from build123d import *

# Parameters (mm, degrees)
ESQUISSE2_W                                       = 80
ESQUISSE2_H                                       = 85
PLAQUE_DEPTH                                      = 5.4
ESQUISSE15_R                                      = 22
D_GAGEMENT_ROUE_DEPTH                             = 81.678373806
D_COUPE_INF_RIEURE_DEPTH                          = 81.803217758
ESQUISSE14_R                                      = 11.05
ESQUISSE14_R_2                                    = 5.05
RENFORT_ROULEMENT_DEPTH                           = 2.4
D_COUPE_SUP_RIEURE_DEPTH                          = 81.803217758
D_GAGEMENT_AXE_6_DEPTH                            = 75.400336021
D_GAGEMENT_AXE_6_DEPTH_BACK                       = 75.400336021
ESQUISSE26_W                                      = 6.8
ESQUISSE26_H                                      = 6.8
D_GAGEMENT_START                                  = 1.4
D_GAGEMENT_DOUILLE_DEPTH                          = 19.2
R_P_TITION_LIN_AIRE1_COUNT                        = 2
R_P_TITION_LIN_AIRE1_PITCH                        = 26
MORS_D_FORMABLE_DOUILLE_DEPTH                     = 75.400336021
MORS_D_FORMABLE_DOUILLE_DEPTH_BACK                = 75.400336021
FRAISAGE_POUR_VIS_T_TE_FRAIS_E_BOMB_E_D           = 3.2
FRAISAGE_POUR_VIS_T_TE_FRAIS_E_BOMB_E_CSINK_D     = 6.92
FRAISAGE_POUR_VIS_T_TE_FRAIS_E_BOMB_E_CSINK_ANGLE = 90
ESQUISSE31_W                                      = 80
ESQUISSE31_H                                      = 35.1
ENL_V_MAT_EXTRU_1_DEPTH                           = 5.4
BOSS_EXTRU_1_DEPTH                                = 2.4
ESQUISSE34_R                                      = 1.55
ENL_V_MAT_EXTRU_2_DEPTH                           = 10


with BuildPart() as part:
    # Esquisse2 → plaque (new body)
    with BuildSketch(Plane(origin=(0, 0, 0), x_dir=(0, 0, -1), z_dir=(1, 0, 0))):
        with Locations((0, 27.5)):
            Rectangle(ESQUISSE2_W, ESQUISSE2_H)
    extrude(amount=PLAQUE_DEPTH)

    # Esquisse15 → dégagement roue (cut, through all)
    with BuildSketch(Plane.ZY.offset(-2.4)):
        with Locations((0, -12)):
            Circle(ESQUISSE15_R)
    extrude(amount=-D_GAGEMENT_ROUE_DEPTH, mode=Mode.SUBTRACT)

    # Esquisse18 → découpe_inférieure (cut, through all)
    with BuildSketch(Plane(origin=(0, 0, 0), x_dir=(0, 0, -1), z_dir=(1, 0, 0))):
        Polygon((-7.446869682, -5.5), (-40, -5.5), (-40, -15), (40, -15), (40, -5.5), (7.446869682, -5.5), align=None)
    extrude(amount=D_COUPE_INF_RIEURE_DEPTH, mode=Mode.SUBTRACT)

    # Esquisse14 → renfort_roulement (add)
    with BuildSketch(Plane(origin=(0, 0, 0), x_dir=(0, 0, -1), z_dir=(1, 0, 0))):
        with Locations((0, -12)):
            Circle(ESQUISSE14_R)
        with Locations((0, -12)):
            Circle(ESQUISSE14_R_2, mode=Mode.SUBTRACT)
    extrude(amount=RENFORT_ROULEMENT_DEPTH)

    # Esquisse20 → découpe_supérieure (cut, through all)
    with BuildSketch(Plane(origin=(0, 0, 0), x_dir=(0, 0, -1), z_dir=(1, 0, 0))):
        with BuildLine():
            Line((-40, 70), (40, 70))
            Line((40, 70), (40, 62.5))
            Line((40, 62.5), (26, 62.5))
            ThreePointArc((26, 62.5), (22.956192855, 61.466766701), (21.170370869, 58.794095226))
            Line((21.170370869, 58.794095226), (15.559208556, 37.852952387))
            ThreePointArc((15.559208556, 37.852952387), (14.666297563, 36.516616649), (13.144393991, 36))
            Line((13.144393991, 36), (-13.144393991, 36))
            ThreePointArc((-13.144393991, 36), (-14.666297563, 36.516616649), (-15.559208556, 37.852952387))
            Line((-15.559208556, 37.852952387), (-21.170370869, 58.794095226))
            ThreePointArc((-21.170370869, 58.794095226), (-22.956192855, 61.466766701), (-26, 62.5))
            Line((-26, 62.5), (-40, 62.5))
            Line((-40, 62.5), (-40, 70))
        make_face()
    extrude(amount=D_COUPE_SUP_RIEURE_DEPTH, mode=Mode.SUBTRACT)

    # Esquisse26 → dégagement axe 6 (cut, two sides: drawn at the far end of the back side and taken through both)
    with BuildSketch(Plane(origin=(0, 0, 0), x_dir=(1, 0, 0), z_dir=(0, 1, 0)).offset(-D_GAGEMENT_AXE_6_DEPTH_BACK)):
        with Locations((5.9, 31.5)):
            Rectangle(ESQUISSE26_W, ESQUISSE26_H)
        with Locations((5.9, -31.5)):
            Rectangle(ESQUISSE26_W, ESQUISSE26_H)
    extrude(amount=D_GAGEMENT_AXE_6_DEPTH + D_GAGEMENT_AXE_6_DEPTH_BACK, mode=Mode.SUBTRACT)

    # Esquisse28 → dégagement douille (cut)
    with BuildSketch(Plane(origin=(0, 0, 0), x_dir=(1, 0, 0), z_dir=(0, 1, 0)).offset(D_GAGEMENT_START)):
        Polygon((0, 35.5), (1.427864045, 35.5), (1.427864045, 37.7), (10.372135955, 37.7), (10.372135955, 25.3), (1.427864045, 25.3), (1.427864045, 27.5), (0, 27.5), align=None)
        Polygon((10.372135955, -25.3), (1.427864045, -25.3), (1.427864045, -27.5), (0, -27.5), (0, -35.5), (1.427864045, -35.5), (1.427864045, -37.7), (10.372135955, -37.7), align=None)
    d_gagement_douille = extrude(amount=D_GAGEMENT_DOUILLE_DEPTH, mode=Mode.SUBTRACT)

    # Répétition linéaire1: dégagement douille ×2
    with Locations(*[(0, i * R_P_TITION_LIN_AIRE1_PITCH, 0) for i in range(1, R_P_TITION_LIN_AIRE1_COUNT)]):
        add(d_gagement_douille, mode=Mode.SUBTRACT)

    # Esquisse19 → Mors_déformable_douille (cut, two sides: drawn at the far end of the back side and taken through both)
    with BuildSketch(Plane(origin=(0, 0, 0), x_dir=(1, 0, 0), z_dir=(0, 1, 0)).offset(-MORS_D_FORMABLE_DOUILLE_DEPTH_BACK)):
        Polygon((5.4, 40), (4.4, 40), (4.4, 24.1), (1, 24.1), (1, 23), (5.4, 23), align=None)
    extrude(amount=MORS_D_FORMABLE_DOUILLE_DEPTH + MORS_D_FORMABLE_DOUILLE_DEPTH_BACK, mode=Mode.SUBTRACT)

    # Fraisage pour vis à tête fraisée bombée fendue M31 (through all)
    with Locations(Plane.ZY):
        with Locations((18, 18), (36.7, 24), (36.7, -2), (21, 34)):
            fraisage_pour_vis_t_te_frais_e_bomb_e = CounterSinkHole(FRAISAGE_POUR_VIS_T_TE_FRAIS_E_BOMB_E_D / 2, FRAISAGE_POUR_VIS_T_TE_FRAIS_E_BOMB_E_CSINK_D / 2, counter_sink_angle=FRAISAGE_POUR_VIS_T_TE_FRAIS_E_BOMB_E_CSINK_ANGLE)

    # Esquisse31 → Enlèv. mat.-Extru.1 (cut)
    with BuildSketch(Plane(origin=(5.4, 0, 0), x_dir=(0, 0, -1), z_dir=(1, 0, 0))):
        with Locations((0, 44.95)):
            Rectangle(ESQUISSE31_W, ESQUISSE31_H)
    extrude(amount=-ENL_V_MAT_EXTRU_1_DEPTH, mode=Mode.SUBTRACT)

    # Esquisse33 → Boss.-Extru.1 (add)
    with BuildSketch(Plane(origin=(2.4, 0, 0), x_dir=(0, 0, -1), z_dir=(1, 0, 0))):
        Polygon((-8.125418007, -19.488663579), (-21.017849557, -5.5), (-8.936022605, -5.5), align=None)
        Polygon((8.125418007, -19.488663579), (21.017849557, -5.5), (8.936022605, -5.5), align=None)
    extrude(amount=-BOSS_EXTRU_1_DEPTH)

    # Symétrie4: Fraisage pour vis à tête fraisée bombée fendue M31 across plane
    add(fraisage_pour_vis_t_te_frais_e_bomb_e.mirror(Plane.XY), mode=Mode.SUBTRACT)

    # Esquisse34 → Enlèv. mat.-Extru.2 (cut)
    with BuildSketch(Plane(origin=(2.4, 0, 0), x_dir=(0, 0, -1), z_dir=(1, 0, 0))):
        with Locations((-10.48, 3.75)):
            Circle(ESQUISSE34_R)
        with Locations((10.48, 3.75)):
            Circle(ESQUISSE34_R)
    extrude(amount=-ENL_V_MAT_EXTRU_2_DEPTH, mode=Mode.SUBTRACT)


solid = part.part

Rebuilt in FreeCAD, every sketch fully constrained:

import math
import FreeCAD as App
import Part
import Sketcher

V = App.Vector
Q = App.Units.Quantity


def add_polygon(sketch, points):
    """Adds a closed chain of lines whose ends are joined by coincident constraints."""
    first, n = sketch.GeometryCount, len(points)
    for a, b in zip(points, points[1:] + points[:1]):
        sketch.addGeometry(Part.LineSegment(App.Vector(*a, 0), App.Vector(*b, 0)), False)
    for i in range(n):
        sketch.addConstraint(Sketcher.Constraint("Coincident", first + i, 2, first + (i + 1) % n, 1))

doc = App.newDocument("Part")
body = doc.addObject("PartDesign::Body", "Body")

# Sketch on YZ plane
sketch1 = doc.addObject("Sketcher::SketchObject", "Sketch")
body.addObject(sketch1)
sketch1.AttachmentSupport = (doc.YZ_Plane, [""])
sketch1.MapMode = "FlatFace"
add_polygon(sketch1, [(70, 40), (-15, 40), (-15, -40), (70, -40)])  # lines 0-3
sketch1.addConstraint(Sketcher.Constraint("Horizontal", 0))
sketch1.addConstraint(Sketcher.Constraint("Vertical", 1))
sketch1.addConstraint(Sketcher.Constraint("Horizontal", 2))
sketch1.addConstraint(Sketcher.Constraint("Vertical", 3))
sketch1.addConstraint(Sketcher.Constraint("DistanceX", 0, 2, 0, 1, 85.0))
sketch1.addConstraint(Sketcher.Constraint("DistanceY", 1, 2, 1, 1, 80.0))
sketch1.addConstraint(Sketcher.Constraint("DistanceX", 0, 2, -1, 1, 15.0))
sketch1.addConstraint(Sketcher.Constraint("DistanceY", -1, 1, 0, 2, 40.0))
pad1 = doc.addObject("PartDesign::Pad", "Pad")
body.addObject(pad1)
pad1.Profile = sketch1
pad1.Length = 5.4

# Sketch on YZ plane
sketch2 = doc.addObject("Sketcher::SketchObject", "Sketch001")
body.addObject(sketch2)
sketch2.AttachmentSupport = (doc.YZ_Plane, [""])
sketch2.MapMode = "FlatFace"
sketch2.AttachmentOffset = App.Placement(V(0, 0, 2.4), App.Rotation())
sketch2.addGeometry(Part.Circle(V(-12, 0, 0), V(0, 0, 1), 22), False)
sketch2.addConstraint(Sketcher.Constraint("PointOnObject", 0, 3, -1))
sketch2.addConstraint(Sketcher.Constraint("Diameter", 0, 44.0))
sketch2.addConstraint(Sketcher.Constraint("DistanceX", 0, 3, -1, 1, 12.0))
pocket1 = doc.addObject("PartDesign::Pocket", "Pocket")
body.addObject(pocket1)
pocket1.Profile = sketch2
pocket1.Type = "ThroughAll"
pocket1.Reversed = True

# Sketch on YZ plane
sketch3 = doc.addObject("Sketcher::SketchObject", "Sketch002")
body.addObject(sketch3)
sketch3.AttachmentSupport = (doc.YZ_Plane, [""])
sketch3.MapMode = "FlatFace"
add_polygon(sketch3, [(-6, 40), (-15, 40), (-15, -40), (-6, -40)])  # lines 0-3
sketch3.addConstraint(Sketcher.Constraint("Horizontal", 0))
sketch3.addConstraint(Sketcher.Constraint("Vertical", 1))
sketch3.addConstraint(Sketcher.Constraint("Horizontal", 2))
sketch3.addConstraint(Sketcher.Constraint("Vertical", 3))
sketch3.addConstraint(Sketcher.Constraint("DistanceY", 1, 2, 1, 1, 80.0))
sketch3.addConstraint(Sketcher.Constraint("DistanceX", 0, 2, 0, 1, 9.5))
sketch3.addConstraint(Sketcher.Constraint("DistanceX", 0, 2, -1, 1, 15.0))
sketch3.addConstraint(Sketcher.Constraint("DistanceY", -1, 1, 0, 2, 40.0))
pocket2 = doc.addObject("PartDesign::Pocket", "Pocket001")
body.addObject(pocket2)
pocket2.Profile = sketch3
pocket2.Type = "ThroughAll"
pocket2.Reversed = True

# Sketch on YZ plane
sketch4 = doc.addObject("Sketcher::SketchObject", "Sketch003")
body.addObject(sketch4)
sketch4.AttachmentSupport = (doc.YZ_Plane, [""])
sketch4.MapMode = "FlatFace"
sketch4.addGeometry(Part.Circle(V(-12, 0, 0), V(0, 0, 1), 11), False)
sketch4.addGeometry(Part.Circle(V(-12, 0, 0), V(0, 0, 1), 5), False)
sketch4.addConstraint(Sketcher.Constraint("Coincident", 1, 3, 0, 3))
sketch4.addConstraint(Sketcher.Constraint("PointOnObject", 0, 3, -1))
sketch4.addConstraint(Sketcher.Constraint("Diameter", 0, 22.1))
sketch4.addConstraint(Sketcher.Constraint("Diameter", 1, 10.1))
sketch4.addConstraint(Sketcher.Constraint("DistanceX", 0, 3, -1, 1, 12.0))
pad2 = doc.addObject("PartDesign::Pad", "Pad001")
body.addObject(pad2)
pad2.Profile = sketch4
pad2.Length = 2.4

# Sketch on YZ plane
sketch5 = doc.addObject("Sketcher::SketchObject", "Sketch004")
body.addObject(sketch5)
sketch5.AttachmentSupport = (doc.YZ_Plane, [""])
sketch5.MapMode = "FlatFace"
sketch5.addGeometry(Part.LineSegment(V(70, -40, 0), V(70, 40, 0)), False)
sketch5.addGeometry(Part.LineSegment(V(70, 40, 0), V(62.5, 40, 0)), False)
sketch5.addGeometry(Part.LineSegment(V(62.5, 40, 0), V(62.5, 26, 0)), False)
sketch5.addGeometry(Part.ArcOfCircle(Part.Circle(V(57.5, 26, 0), V(0, 0, 1), 5), math.radians(-75), math.radians(0)), False)
sketch5.addGeometry(Part.LineSegment(V(58.8, 21.2, 0), V(37.9, 15.6, 0)), False)
sketch5.addGeometry(Part.ArcOfCircle(Part.Circle(V(38.5, 13.1, 0), V(0, 0, 1), 2.5), math.radians(105), math.radians(180)), False)
sketch5.addGeometry(Part.LineSegment(V(36, 13.1, 0), V(36, -13.1, 0)), False)
sketch5.addGeometry(Part.ArcOfCircle(Part.Circle(V(38.5, -13.1, 0), V(0, 0, 1), 2.5), math.radians(180), math.radians(255)), False)
sketch5.addGeometry(Part.LineSegment(V(37.9, -15.6, 0), V(58.8, -21.2, 0)), False)
sketch5.addGeometry(Part.ArcOfCircle(Part.Circle(V(57.5, -26, 0), V(0, 0, 1), 5), math.radians(0), math.radians(75)), False)
sketch5.addGeometry(Part.LineSegment(V(62.5, -26, 0), V(62.5, -40, 0)), False)
sketch5.addGeometry(Part.LineSegment(V(62.5, -40, 0), V(70, -40, 0)), False)
sketch5.addConstraint(Sketcher.Constraint("Coincident", 0, 2, 1, 1))
sketch5.addConstraint(Sketcher.Constraint("Coincident", 1, 2, 2, 1))
sketch5.addConstraint(Sketcher.Constraint("Tangent", 2, 2, 3, 2))
sketch5.addConstraint(Sketcher.Constraint("Tangent", 3, 1, 4, 1))
sketch5.addConstraint(Sketcher.Constraint("Tangent", 4, 2, 5, 1))
sketch5.addConstraint(Sketcher.Constraint("Tangent", 5, 2, 6, 1))
sketch5.addConstraint(Sketcher.Constraint("Tangent", 6, 2, 7, 1))
sketch5.addConstraint(Sketcher.Constraint("Tangent", 7, 2, 8, 1))
sketch5.addConstraint(Sketcher.Constraint("Tangent", 8, 2, 9, 2))
sketch5.addConstraint(Sketcher.Constraint("Tangent", 9, 1, 10, 1))
sketch5.addConstraint(Sketcher.Constraint("Coincident", 10, 2, 11, 1))
sketch5.addConstraint(Sketcher.Constraint("Coincident", 11, 2, 0, 1))
sketch5.addConstraint(Sketcher.Constraint("Vertical", 0))
sketch5.addConstraint(Sketcher.Constraint("Horizontal", 1))
sketch5.addConstraint(Sketcher.Constraint("Vertical", 2))
sketch5.addConstraint(Sketcher.Constraint("Vertical", 6))
sketch5.addConstraint(Sketcher.Constraint("Vertical", 10))
sketch5.addConstraint(Sketcher.Constraint("Horizontal", 11))
sketch5.addConstraint(Sketcher.Constraint("Equal", 5, 7))
sketch5.addConstraint(Sketcher.Constraint("Equal", 3, 9))
sketch5.addConstraint(Sketcher.Constraint("Symmetric", 3, 3, 9, 3, -1))
sketch5.addConstraint(Sketcher.Constraint("Vertical", 4, 2, 7, 2))
sketch5.addConstraint(Sketcher.Constraint("Equal", 2, 10))
sketch5.addConstraint(Sketcher.Constraint("Radius", 3, 5.0))
sketch5.addConstraint(Sketcher.Constraint("Radius", 5, 2.5))
sketch5.addConstraint(Sketcher.Constraint("DistanceY", 0, 1, 0, 2, 80.0))
sketch5.addConstraint(Sketcher.Constraint("DistanceY", 2, 2, 2, 1, 14.0))
sketch5.addConstraint(Sketcher.Constraint("Angle", 4, Q("-165 deg")))
sketch5.addConstraint(Sketcher.Constraint("DistanceX", 1, 2, 1, 1, 7.5))
sketch5.addConstraint(Sketcher.Constraint("DistanceX", -1, 1, 0, 2, 70.0))
sketch5.addConstraint(Sketcher.Constraint("DistanceX", -1, 1, 5, 2, 36.0))
pocket3 = doc.addObject("PartDesign::Pocket", "Pocket002")
body.addObject(pocket3)
pocket3.Profile = sketch5
pocket3.Type = "ThroughAll"
pocket3.Reversed = True

# Sketch on XZ plane
sketch6 = doc.addObject("Sketcher::SketchObject", "Sketch005")
body.addObject(sketch6)
sketch6.AttachmentSupport = (doc.XZ_Plane, [""])
sketch6.MapMode = "FlatFace"
add_polygon(sketch6, [(2, -35), (2, -28), (9, -28), (9, -35)])  # lines 0-3
add_polygon(sketch6, [(2, 28), (2, 35), (9, 35), (9, 28)])  # lines 4-7
sketch6.addConstraint(Sketcher.Constraint("Vertical", 0))
sketch6.addConstraint(Sketcher.Constraint("Horizontal", 1))
sketch6.addConstraint(Sketcher.Constraint("Vertical", 2))
sketch6.addConstraint(Sketcher.Constraint("Horizontal", 3))
sketch6.addConstraint(Sketcher.Constraint("Vertical", 4))
sketch6.addConstraint(Sketcher.Constraint("Horizontal", 5))
sketch6.addConstraint(Sketcher.Constraint("Vertical", 6))
sketch6.addConstraint(Sketcher.Constraint("Horizontal", 7))
sketch6.addConstraint(Sketcher.Constraint("Symmetric", 3, 2, 4, 2, -1))
sketch6.addConstraint(Sketcher.Constraint("Symmetric", 1, 2, 6, 2, -1))
sketch6.addConstraint(Sketcher.Constraint("Equal", 7, 0))
sketch6.addConstraint(Sketcher.Constraint("DistanceX", 1, 1, 1, 2, 6.8))
sketch6.addConstraint(Sketcher.Constraint("DistanceY", 0, 2, 4, 2, 63.0))
sketch6.addConstraint(Sketcher.Constraint("DistanceX", -1, 1, 0, 2, 2.5))
pocket4 = doc.addObject("PartDesign::Pocket", "Pocket003")
body.addObject(pocket4)
pocket4.Profile = sketch6
pocket4.Type = "ThroughAll"
pocket4.Midplane = True

# Sketch on XZ plane
sketch7 = doc.addObject("Sketcher::SketchObject", "Sketch006")
body.addObject(sketch7)
sketch7.AttachmentSupport = (doc.XZ_Plane, [""])
sketch7.MapMode = "FlatFace"
sketch7.AttachmentOffset = App.Placement(V(0, 0, -1.4), App.Rotation())
add_polygon(sketch7, [(1.4, -35.5), (0, -35.5), (0, -27.5), (1.4, -27.5), (1.4, -25.3), (10.4, -25.3), (10.4, -37.7), (1.4, -37.7)])  # lines 0-7
add_polygon(sketch7, [(10.4, 25.3), (1.4, 25.3), (1.4, 27.5), (0, 27.5), (0, 35.5), (1.4, 35.5), (1.4, 37.7), (10.4, 37.7)])  # lines 8-15
sketch7.addConstraint(Sketcher.Constraint("Horizontal", 0))
sketch7.addConstraint(Sketcher.Constraint("Vertical", 1))
sketch7.addConstraint(Sketcher.Constraint("Horizontal", 2))
sketch7.addConstraint(Sketcher.Constraint("Vertical", 3))
sketch7.addConstraint(Sketcher.Constraint("Horizontal", 4))
sketch7.addConstraint(Sketcher.Constraint("Vertical", 5))
sketch7.addConstraint(Sketcher.Constraint("Horizontal", 6))
sketch7.addConstraint(Sketcher.Constraint("Vertical", 7))
sketch7.addConstraint(Sketcher.Constraint("Horizontal", 8))
sketch7.addConstraint(Sketcher.Constraint("Vertical", 9))
sketch7.addConstraint(Sketcher.Constraint("Horizontal", 10))
sketch7.addConstraint(Sketcher.Constraint("Vertical", 11))
sketch7.addConstraint(Sketcher.Constraint("Horizontal", 12))
sketch7.addConstraint(Sketcher.Constraint("Vertical", 13))
sketch7.addConstraint(Sketcher.Constraint("Horizontal", 14))
sketch7.addConstraint(Sketcher.Constraint("Vertical", 15))
sketch7.addConstraint(Sketcher.Constraint("Symmetric", 1, 2, 10, 2, -1, 1))
sketch7.addConstraint(Sketcher.Constraint("Symmetric", 3, 2, 8, 2, -1))
sketch7.addConstraint(Sketcher.Constraint("Symmetric", 0, 2, 11, 2, -1))
sketch7.addConstraint(Sketcher.Constraint("Symmetric", 6, 2, 13, 2, -1))
sketch7.addConstraint(Sketcher.Constraint("Vertical", 3, 2, 6, 2))
sketch7.addConstraint(Sketcher.Constraint("Vertical", 5, 2, 14, 2))
sketch7.addConstraint(Sketcher.Constraint("Equal", 3, 7))
sketch7.addConstraint(Sketcher.Constraint("DistanceY", 1, 1, 1, 2, 8.0))
sketch7.addConstraint(Sketcher.Constraint("DistanceY", 3, 1, 3, 2, 2.2))
sketch7.addConstraint(Sketcher.Constraint("DistanceY", 2, 2, 9, 2, 55.0))
sketch7.addConstraint(Sketcher.Constraint("DistanceX", 4, 1, 4, 2, 8.944272))
sketch7.addConstraint(Sketcher.Constraint("DistanceX", 0, 2, 0, 1, 1.427864))
pocket5 = doc.addObject("PartDesign::Pocket", "Pocket004")
body.addObject(pocket5)
pocket5.Profile = sketch7
pocket5.Length = 19.2
doc.recompute()

linearpattern = doc.addObject("PartDesign::LinearPattern", "LinearPattern")
body.addObject(linearpattern)
linearpattern.Originals = [pocket5]
linearpattern.Direction = (doc.Y_Axis, [""])
linearpattern.Mode = "offset"
linearpattern.Offset = 26
linearpattern.Occurrences = 2
body.Tip = linearpattern

# Sketch on XZ plane
sketch8 = doc.addObject("Sketcher::SketchObject", "Sketch007")
body.addObject(sketch8)
sketch8.AttachmentSupport = (doc.XZ_Plane, [""])
sketch8.MapMode = "FlatFace"
add_polygon(sketch8, [(5.4, -40), (4.4, -40), (4.4, -24.1), (1, -24.1), (1, -23), (5.4, -23)])  # lines 0-5
sketch8.addConstraint(Sketcher.Constraint("Horizontal", 0))
sketch8.addConstraint(Sketcher.Constraint("Vertical", 1))
sketch8.addConstraint(Sketcher.Constraint("Horizontal", 2))
sketch8.addConstraint(Sketcher.Constraint("Vertical", 3))
sketch8.addConstraint(Sketcher.Constraint("Horizontal", 4))
sketch8.addConstraint(Sketcher.Constraint("Vertical", 5))
sketch8.addConstraint(Sketcher.Constraint("DistanceX", 0, 2, 0, 1, 1.0))
sketch8.addConstraint(Sketcher.Constraint("DistanceY", 5, 2, 5, 1, 17.0))
sketch8.addConstraint(Sketcher.Constraint("DistanceX", 2, 2, 2, 1, 3.4))
sketch8.addConstraint(Sketcher.Constraint("DistanceY", 1, 1, 1, 2, 15.9))
sketch8.addConstraint(Sketcher.Constraint("DistanceY", 0, 2, -1, 1, 40.0))
sketch8.addConstraint(Sketcher.Constraint("DistanceX", -1, 1, 2, 2, 1.0))
pocket6 = doc.addObject("PartDesign::Pocket", "Pocket005")
body.addObject(pocket6)
pocket6.Profile = sketch8
pocket6.Type = "ThroughAll"
pocket6.Midplane = True

# Sketch on YZ plane
sketch9 = doc.addObject("Sketcher::SketchObject", "Sketch008")
body.addObject(sketch9)
sketch9.AttachmentSupport = (doc.YZ_Plane, [""])
sketch9.MapMode = "FlatFace"
sketch9.addGeometry(Part.Circle(V(18, 18, 0), V(0, 0, 1), 1.6), False)
sketch9.addGeometry(Part.Circle(V(24, 36.7, 0), V(0, 0, 1), 1.6), False)
sketch9.addGeometry(Part.Circle(V(-2, 36.7, 0), V(0, 0, 1), 1.6), False)
sketch9.addGeometry(Part.Circle(V(34, 21, 0), V(0, 0, 1), 1.6), False)
sketch9.addConstraint(Sketcher.Constraint("Equal", 0, 1))
sketch9.addConstraint(Sketcher.Constraint("Equal", 1, 2))
sketch9.addConstraint(Sketcher.Constraint("Equal", 2, 3))
sketch9.addConstraint(Sketcher.Constraint("Horizontal", 1, 3, 2, 3))
sketch9.addConstraint(Sketcher.Constraint("Diameter", 0, 3.2))
sketch9.addConstraint(Sketcher.Constraint("DistanceX", -1, 1, 0, 3, 18.0))
sketch9.addConstraint(Sketcher.Constraint("DistanceY", -1, 1, 0, 3, 18.0))
sketch9.addConstraint(Sketcher.Constraint("DistanceX", -1, 1, 1, 3, 24.0))
sketch9.addConstraint(Sketcher.Constraint("DistanceX", 2, 3, -1, 1, 2.0))
sketch9.addConstraint(Sketcher.Constraint("DistanceX", -1, 1, 3, 3, 34.0))
sketch9.addConstraint(Sketcher.Constraint("DistanceY", -1, 1, 3, 3, 21.0))
sketch9.addConstraint(Sketcher.Constraint("DistanceY", -1, 1, 1, 3, 36.7))
doc.recompute()
hole = doc.addObject("PartDesign::Hole", "Hole")
body.addObject(hole)
hole.Profile = sketch9
hole.ThreadType = "None"
hole.Diameter = 3.2
hole.DepthType = "ThroughAll"
hole.HoleCutType = "Countersink"
hole.HoleCutDiameter = 6.92
hole.HoleCutCountersinkAngle = 90
hole.Reversed = True

# Sketch on YZ plane
sketch10 = doc.addObject("Sketcher::SketchObject", "Sketch009")
body.addObject(sketch10)
sketch10.AttachmentSupport = (doc.YZ_Plane, [""])
sketch10.MapMode = "FlatFace"
sketch10.AttachmentOffset = App.Placement(V(0, 0, 5.4), App.Rotation())
add_polygon(sketch10, [(62, 40), (27, 40), (27, -40), (62, -40)])  # lines 0-3
sketch10.addConstraint(Sketcher.Constraint("Horizontal", 0))
sketch10.addConstraint(Sketcher.Constraint("Vertical", 1))
sketch10.addConstraint(Sketcher.Constraint("Horizontal", 2))
sketch10.addConstraint(Sketcher.Constraint("Vertical", 3))
sketch10.addConstraint(Sketcher.Constraint("DistanceY", 1, 2, 1, 1, 80.0))
sketch10.addConstraint(Sketcher.Constraint("DistanceX", 0, 2, 0, 1, 35.1))
sketch10.addConstraint(Sketcher.Constraint("DistanceY", -1, 1, 0, 2, 40.0))
sketch10.addConstraint(Sketcher.Constraint("DistanceX", -1, 1, 0, 2, 27.4))
pocket7 = doc.addObject("PartDesign::Pocket", "Pocket006")
body.addObject(pocket7)
pocket7.Profile = sketch10
pocket7.Length = 5.4

# Sketch on YZ plane
sketch11 = doc.addObject("Sketcher::SketchObject", "Sketch010")
body.addObject(sketch11)
sketch11.AttachmentSupport = (doc.YZ_Plane, [""])
sketch11.MapMode = "FlatFace"
sketch11.AttachmentOffset = App.Placement(V(0, 0, 2.4), App.Rotation())
add_polygon(sketch11, [(-6, 21), (-19, 8), (-6, 9)])  # lines 0-2
add_polygon(sketch11, [(-19, -8), (-6, -21), (-6, -9)])  # lines 3-5
sketch11.addConstraint(Sketcher.Constraint("Vertical", 2))
sketch11.addConstraint(Sketcher.Constraint("Vertical", 4))
sketch11.addConstraint(Sketcher.Constraint("Symmetric", 2, 2, 3, 2, -1))
sketch11.addConstraint(Sketcher.Constraint("Symmetric", 0, 2, 5, 2, -1))
sketch11.addConstraint(Sketcher.Constraint("Equal", 2, 4))
sketch11.addConstraint(Sketcher.Constraint("DistanceX", 1, 2, -1, 1, 5.5))
sketch11.addConstraint(Sketcher.Constraint("DistanceY", 3, 2, 2, 2, 42.035699))
sketch11.addConstraint(Sketcher.Constraint("Distance", 1, 14.01213))
sketch11.addConstraint(Sketcher.Constraint("DistanceY", 2, 1, 2, 2, 12.081827))
sketch11.addConstraint(Sketcher.Constraint("DistanceY", -1, 1, 0, 2, 8.125418))
pad3 = doc.addObject("PartDesign::Pad", "Pad002")
body.addObject(pad3)
pad3.Profile = sketch11
pad3.Length = 2.4
pad3.Reversed = True
doc.recompute()

mirrored = doc.addObject("PartDesign::Mirrored", "Mirrored")
body.addObject(mirrored)
mirrored.Originals = [hole]
mirrored.MirrorPlane = (doc.XY_Plane, [""])
body.Tip = mirrored

# Sketch on YZ plane
sketch12 = doc.addObject("Sketcher::SketchObject", "Sketch011")
body.addObject(sketch12)
sketch12.AttachmentSupport = (doc.YZ_Plane, [""])
sketch12.MapMode = "FlatFace"
sketch12.AttachmentOffset = App.Placement(V(0, 0, 2.4), App.Rotation())
sketch12.addGeometry(Part.Circle(V(3.8, 10.5, 0), V(0, 0, 1), 1.6), False)
sketch12.addGeometry(Part.Circle(V(3.8, -10.5, 0), V(0, 0, 1), 1.6), False)
sketch12.addConstraint(Sketcher.Constraint("Equal", 0, 1))
sketch12.addConstraint(Sketcher.Constraint("Symmetric", 0, 3, 1, 3, -1))
sketch12.addConstraint(Sketcher.Constraint("Diameter", 0, 3.1))
sketch12.addConstraint(Sketcher.Constraint("DistanceX", -1, 1, 0, 3, 3.75))
sketch12.addConstraint(Sketcher.Constraint("DistanceY", -1, 1, 0, 3, 10.48))
pocket8 = doc.addObject("PartDesign::Pocket", "Pocket007")
body.addObject(pocket8)
pocket8.Profile = sketch12
pocket8.Length = 10

doc.recompute()
